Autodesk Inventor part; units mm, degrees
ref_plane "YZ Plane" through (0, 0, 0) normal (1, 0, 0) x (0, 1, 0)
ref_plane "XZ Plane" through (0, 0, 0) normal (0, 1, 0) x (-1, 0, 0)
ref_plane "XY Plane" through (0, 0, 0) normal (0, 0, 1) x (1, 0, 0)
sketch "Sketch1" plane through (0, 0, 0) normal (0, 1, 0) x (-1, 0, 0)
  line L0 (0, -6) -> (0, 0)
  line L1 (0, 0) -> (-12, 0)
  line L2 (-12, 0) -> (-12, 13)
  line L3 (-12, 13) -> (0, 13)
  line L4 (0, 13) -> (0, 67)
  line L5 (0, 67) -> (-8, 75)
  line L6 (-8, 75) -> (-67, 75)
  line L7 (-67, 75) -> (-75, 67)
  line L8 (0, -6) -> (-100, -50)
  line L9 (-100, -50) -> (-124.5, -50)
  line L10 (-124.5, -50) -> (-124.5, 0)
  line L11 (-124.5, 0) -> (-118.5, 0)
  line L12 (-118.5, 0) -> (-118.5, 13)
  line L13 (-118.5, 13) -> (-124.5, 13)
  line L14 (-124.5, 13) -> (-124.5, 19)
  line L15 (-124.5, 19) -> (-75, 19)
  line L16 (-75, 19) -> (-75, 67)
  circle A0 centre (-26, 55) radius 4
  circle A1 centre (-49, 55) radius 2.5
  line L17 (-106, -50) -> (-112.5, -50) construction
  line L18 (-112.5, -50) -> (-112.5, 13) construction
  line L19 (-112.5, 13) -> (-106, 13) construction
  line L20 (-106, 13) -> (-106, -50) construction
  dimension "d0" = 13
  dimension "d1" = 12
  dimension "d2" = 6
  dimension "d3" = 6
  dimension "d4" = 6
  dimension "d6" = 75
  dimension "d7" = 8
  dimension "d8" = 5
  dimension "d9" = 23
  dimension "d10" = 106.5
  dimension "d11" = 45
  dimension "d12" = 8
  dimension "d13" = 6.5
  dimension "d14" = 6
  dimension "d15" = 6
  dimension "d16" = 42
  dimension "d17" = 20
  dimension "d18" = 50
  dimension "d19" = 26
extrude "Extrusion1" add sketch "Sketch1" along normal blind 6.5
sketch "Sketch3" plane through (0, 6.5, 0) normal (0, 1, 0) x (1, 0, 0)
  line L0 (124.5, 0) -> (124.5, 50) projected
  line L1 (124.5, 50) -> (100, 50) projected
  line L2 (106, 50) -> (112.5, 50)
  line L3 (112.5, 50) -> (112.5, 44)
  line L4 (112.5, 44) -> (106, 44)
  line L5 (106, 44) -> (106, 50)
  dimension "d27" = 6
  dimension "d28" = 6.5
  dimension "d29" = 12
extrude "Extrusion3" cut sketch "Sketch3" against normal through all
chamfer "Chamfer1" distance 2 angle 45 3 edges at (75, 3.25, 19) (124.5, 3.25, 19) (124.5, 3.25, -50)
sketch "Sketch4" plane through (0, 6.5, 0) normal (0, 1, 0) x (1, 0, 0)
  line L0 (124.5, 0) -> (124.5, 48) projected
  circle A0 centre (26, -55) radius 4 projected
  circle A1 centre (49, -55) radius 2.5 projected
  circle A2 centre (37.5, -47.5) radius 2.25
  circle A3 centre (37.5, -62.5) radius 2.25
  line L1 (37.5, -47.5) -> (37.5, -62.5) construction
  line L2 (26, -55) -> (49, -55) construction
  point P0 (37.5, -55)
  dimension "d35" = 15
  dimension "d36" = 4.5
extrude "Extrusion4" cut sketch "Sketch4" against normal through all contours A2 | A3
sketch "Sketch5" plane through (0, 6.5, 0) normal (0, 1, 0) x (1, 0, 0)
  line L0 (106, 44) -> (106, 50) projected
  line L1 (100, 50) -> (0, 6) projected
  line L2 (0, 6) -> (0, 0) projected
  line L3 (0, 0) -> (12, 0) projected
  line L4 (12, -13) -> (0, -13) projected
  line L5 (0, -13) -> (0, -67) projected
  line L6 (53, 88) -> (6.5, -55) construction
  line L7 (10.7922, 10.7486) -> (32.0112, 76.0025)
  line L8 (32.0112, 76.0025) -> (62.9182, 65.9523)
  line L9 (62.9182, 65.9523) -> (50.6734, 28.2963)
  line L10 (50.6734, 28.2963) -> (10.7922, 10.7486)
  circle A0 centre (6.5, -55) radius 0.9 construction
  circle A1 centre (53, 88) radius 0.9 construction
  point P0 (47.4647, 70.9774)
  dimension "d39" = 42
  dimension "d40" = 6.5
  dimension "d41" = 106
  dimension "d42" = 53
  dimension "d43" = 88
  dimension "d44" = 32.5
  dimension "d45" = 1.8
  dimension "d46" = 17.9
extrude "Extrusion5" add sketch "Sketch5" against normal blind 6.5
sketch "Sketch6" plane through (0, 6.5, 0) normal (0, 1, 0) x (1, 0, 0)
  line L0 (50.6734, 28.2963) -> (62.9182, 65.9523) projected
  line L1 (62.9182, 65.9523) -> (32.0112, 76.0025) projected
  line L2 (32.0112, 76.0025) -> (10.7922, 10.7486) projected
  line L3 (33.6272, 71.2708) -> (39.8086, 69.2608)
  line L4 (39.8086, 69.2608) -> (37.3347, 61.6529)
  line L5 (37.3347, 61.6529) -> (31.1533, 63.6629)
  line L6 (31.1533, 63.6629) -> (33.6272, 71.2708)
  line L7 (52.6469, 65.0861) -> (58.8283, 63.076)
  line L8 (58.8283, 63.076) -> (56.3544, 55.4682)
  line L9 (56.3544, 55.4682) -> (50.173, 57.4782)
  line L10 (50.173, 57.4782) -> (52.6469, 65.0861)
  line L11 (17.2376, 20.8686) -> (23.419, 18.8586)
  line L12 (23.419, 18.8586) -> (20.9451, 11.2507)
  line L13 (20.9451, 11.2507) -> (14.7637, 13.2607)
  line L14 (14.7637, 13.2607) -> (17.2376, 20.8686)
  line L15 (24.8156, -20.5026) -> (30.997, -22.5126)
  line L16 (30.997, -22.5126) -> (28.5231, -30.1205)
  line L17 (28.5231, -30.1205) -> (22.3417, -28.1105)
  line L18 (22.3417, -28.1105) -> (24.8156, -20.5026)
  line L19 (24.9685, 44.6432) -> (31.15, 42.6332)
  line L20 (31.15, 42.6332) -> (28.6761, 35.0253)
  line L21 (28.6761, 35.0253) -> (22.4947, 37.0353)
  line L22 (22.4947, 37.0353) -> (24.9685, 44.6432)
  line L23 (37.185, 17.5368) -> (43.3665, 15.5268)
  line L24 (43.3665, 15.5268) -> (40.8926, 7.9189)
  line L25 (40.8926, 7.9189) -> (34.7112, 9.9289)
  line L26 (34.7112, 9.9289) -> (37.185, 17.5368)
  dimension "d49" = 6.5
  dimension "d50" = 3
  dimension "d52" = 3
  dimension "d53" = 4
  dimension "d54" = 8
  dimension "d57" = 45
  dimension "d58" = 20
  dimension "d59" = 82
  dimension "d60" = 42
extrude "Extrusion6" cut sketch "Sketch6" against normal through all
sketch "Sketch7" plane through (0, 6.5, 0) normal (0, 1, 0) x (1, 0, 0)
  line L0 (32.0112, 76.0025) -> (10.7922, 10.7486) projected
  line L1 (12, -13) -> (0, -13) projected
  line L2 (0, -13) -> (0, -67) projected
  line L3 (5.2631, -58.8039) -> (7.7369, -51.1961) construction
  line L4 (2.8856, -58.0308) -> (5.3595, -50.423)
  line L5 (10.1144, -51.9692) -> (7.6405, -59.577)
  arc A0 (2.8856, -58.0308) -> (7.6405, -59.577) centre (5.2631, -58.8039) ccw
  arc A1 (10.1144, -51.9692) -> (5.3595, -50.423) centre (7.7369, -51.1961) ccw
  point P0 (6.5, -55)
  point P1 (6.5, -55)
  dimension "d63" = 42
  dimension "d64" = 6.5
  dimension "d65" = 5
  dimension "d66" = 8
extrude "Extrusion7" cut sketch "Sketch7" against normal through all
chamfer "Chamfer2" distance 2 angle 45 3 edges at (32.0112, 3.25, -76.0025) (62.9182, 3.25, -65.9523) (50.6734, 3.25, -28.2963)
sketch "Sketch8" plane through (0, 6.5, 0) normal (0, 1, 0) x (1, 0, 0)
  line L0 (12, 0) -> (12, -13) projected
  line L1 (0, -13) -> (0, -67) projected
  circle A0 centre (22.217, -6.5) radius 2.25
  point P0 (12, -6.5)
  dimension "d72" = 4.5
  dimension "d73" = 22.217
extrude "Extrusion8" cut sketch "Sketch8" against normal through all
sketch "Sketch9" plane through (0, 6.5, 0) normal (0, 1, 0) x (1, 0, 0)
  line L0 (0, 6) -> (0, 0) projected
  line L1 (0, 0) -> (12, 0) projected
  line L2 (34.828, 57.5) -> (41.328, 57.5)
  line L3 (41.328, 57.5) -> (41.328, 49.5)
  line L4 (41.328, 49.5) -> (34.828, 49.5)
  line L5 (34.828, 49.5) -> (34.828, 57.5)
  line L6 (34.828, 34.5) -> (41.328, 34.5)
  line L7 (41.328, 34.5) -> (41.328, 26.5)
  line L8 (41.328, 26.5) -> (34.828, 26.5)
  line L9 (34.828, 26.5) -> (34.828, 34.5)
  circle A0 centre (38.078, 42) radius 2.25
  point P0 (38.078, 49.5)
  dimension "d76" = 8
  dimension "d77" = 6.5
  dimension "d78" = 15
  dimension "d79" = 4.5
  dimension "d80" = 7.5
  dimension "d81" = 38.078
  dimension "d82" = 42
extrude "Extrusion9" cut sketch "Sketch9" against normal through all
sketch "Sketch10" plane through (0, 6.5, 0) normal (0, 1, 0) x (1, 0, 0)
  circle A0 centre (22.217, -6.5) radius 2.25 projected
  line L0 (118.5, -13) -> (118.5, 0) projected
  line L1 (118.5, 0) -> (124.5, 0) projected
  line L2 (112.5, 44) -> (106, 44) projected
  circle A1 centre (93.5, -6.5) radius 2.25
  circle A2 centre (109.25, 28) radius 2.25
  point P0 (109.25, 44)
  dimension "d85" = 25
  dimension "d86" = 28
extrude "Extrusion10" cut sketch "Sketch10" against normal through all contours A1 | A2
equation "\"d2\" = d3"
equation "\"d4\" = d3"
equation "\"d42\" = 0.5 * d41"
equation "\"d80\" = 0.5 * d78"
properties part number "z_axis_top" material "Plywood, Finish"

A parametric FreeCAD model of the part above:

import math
import FreeCAD as App
import Part
import Sketcher

V = App.Vector
Q = App.Units.Quantity


def edges_at(feature, points):
    """Names of the edges that pass closest to the given points."""
    edges = feature.Shape.Edges
    near = lambda p: min(range(len(edges)), key=lambda i: edges[i].distToShape(Part.Vertex(*p))[0])
    return sorted({f"Edge{near(p) + 1}" for p in points})


def add_polygon(sketch, points):
    """Adds a closed chain of lines whose ends are joined by coincident constraints."""
    first, n = sketch.GeometryCount, len(points)
    for a, b in zip(points, points[1:] + points[:1]):
        sketch.addGeometry(Part.LineSegment(App.Vector(*a, 0), App.Vector(*b, 0)), False)
    for i in range(n):
        sketch.addConstraint(Sketcher.Constraint("Coincident", first + i, 2, first + (i + 1) % n, 1))

doc = App.newDocument("Part")
body = doc.addObject("PartDesign::Body", "Body")

sketch1 = doc.addObject("Sketcher::SketchObject", "Sketch")
body.addObject(sketch1)
sketch1.AttachmentSupport = (doc.XZ_Plane, [""])
sketch1.MapMode = "FlatFace"
add_polygon(sketch1, [(100, -50), (0, -6), (0, 0), (12, 0), (12, 13), (0, 13), (0, 67), (8, 75), (67, 75), (75, 67), (75, 19), (124.5, 19), (124.5, 13), (118.5, 13), (118.5, 0), (124.5, 0), (124.5, -50)])
sketch1.addGeometry(Part.Circle(V(49, 55, 0), V(0, 0, 1), 2.5), False)
sketch1.addGeometry(Part.Circle(V(26, 55, 0), V(0, 0, 1), 4), False)
sketch1.addConstraint(Sketcher.Constraint("Vertical", 1))
sketch1.addConstraint(Sketcher.Constraint("Horizontal", 2))
sketch1.addConstraint(Sketcher.Constraint("Vertical", 3))
sketch1.addConstraint(Sketcher.Constraint("Horizontal", 4))
sketch1.addConstraint(Sketcher.Constraint("Vertical", 5))
sketch1.addConstraint(Sketcher.Constraint("Horizontal", 7))
sketch1.addConstraint(Sketcher.Constraint("Vertical", 9))
sketch1.addConstraint(Sketcher.Constraint("Horizontal", 10))
sketch1.addConstraint(Sketcher.Constraint("Vertical", 11))
sketch1.addConstraint(Sketcher.Constraint("Horizontal", 12))
sketch1.addConstraint(Sketcher.Constraint("Vertical", 13))
sketch1.addConstraint(Sketcher.Constraint("Horizontal", 14))
sketch1.addConstraint(Sketcher.Constraint("Vertical", 15))
sketch1.addConstraint(Sketcher.Constraint("Horizontal", 16))
sketch1.addConstraint(Sketcher.Constraint("Coincident", 1, 2, -1, 1))
sketch1.addConstraint(Sketcher.Constraint("PointOnObject", 4, 2, -2))
sketch1.addConstraint(Sketcher.Constraint("PointOnObject", 13, 2, -1))
sketch1.addConstraint(Sketcher.Constraint("Perpendicular", 6, 8))
sketch1.addConstraint(Sketcher.Constraint("Horizontal", 17, 3, 18, 3))
sketch1.addConstraint(Sketcher.Constraint("Horizontal", 5, 2, 8, 2))
sketch1.addConstraint(Sketcher.Constraint("Horizontal", 4, 2, 11, 2))
sketch1.addConstraint(Sketcher.Constraint("Vertical", 11, 2, 14, 2))
sketch1.addConstraint(Sketcher.Constraint("Equal", 14, 1))
sketch1.addConstraint(Sketcher.Constraint("Equal", 1, 11))
sketch1.addConstraint(Sketcher.Constraint("Equal", 6, 8))
sketch1.addConstraint(Sketcher.Constraint("Diameter", 17, Q("5 mm")))
sketch1.addConstraint(Sketcher.Constraint("Diameter", 18, Q("8 mm")))
sketch1.addConstraint(Sketcher.Constraint("DistanceX", 2, 1, 2, 2, Q("12 mm")))
sketch1.addConstraint(Sketcher.Constraint("DistanceX", 12, 2, 12, 1, Q("6 mm")))
sketch1.addConstraint(Sketcher.Constraint("DistanceY", 3, 1, 3, 2, Q("13 mm")))
sketch1.addConstraint(Sketcher.Constraint("DistanceY", 15, 2, 15, 1, Q("50 mm")))
sketch1.addConstraint(Sketcher.Constraint("DistanceX", -1, 1, 18, 3, Q("26 mm")))
sketch1.addConstraint(Sketcher.Constraint("DistanceX", -1, 1, 6, 2, Q("8 mm")))
sketch1.addConstraint(Sketcher.Constraint("DistanceY", -1, 1, 6, 2, Q("75 mm")))
sketch1.addConstraint(Sketcher.Constraint("DistanceX", -1, 1, 8, 2, Q("75 mm")))
sketch1.addConstraint(Sketcher.Constraint("DistanceX", 18, 3, 17, 3, Q("23 mm")))
sketch1.addConstraint(Sketcher.Constraint("DistanceY", 3, 2, 18, 3, Q("42 mm")))
sketch1.addConstraint(Sketcher.Constraint("DistanceX", 10, 1, 10, 2, Q("49.5 mm")))
sketch1.addConstraint(Sketcher.Constraint("DistanceX", 16, 2, 16, 1, Q("24.5 mm")))
pad1 = doc.addObject("PartDesign::Pad", "Pad")
body.addObject(pad1)
pad1.Profile = sketch1
pad1.Length = 6.5
pad1.Reversed = True

sketch2 = doc.addObject("Sketcher::SketchObject", "Sketch001")
body.addObject(sketch2)
sketch2.AttachmentSupport = (doc.XZ_Plane, [""])
sketch2.MapMode = "FlatFace"
sketch2.AttachmentOffset = App.Placement(V(0, 0, -6.5), App.Rotation())
add_polygon(sketch2, [(112.5, -44), (112.5, -50), (106, -50), (106, -44)])
sketch2.addConstraint(Sketcher.Constraint("Vertical", 0))
sketch2.addConstraint(Sketcher.Constraint("Horizontal", 1))
sketch2.addConstraint(Sketcher.Constraint("Vertical", 2))
sketch2.addConstraint(Sketcher.Constraint("Horizontal", 3))
sketch2.addConstraint(Sketcher.Constraint("DistanceY", 0, 2, 0, 1, Q("6 mm")))
sketch2.addConstraint(Sketcher.Constraint("DistanceX", 1, 2, 1, 1, Q("6.5 mm")))
sketch2.addConstraint(Sketcher.Constraint("DistanceY", 0, 2, -1, 1, Q("50 mm")))
sketch2.addConstraint(Sketcher.Constraint("DistanceX", -1, 1, 1, 2, Q("106 mm")))
pocket1 = doc.addObject("PartDesign::Pocket", "Pocket")
body.addObject(pocket1)
pocket1.Profile = sketch2
pocket1.Type = "ThroughAll"
pocket1.Reversed = True
doc.recompute()

chamfer = doc.addObject("PartDesign::Chamfer", "Chamfer")
body.addObject(chamfer)
chamfer.Base = (pocket1, edges_at(pocket1, [(75, 3.25, 19), (124.5, 3.25, 19), (124.5, 3.25, -50)]))
chamfer.Size = 2

sketch3 = doc.addObject("Sketcher::SketchObject", "Sketch002")
body.addObject(sketch3)
sketch3.AttachmentSupport = (doc.XZ_Plane, [""])
sketch3.MapMode = "FlatFace"
sketch3.AttachmentOffset = App.Placement(V(0, 0, -6.5), App.Rotation())
sketch3.addGeometry(Part.Circle(V(37.5, 47.5, 0), V(0, 0, 1), 2.25), False)
sketch3.addGeometry(Part.Circle(V(37.5, 62.5, 0), V(0, 0, 1), 2.25), False)
sketch3.addConstraint(Sketcher.Constraint("Equal", 0, 1))
sketch3.addConstraint(Sketcher.Constraint("Vertical", 0, 3, 1, 3))
sketch3.addConstraint(Sketcher.Constraint("Diameter", 0, Q("4.5 mm")))
sketch3.addConstraint(Sketcher.Constraint("DistanceY", 0, 3, 1, 3, Q("15 mm")))
sketch3.addConstraint(Sketcher.Constraint("DistanceX", -1, 1, 0, 3, Q("37.5 mm")))
sketch3.addConstraint(Sketcher.Constraint("DistanceY", -1, 1, 0, 3, Q("47.5 mm")))
pocket2 = doc.addObject("PartDesign::Pocket", "Pocket001")
body.addObject(pocket2)
pocket2.Profile = sketch3
pocket2.Type = "ThroughAll"
pocket2.Reversed = True

sketch4 = doc.addObject("Sketcher::SketchObject", "Sketch003")
body.addObject(sketch4)
sketch4.AttachmentSupport = (doc.XZ_Plane, [""])
sketch4.MapMode = "FlatFace"
sketch4.AttachmentOffset = App.Placement(V(0, 0, -6.5), App.Rotation())
add_polygon(sketch4, [(10.792212, -10.748573), (50.6734, -28.2963), (62.9182, -65.9523), (32.0112, -76.0025)])
sketch4.addConstraint(Sketcher.Constraint("Perpendicular", 1, 2))
sketch4.addConstraint(Sketcher.Constraint("Perpendicular", 2, 3))
sketch4.addConstraint(Sketcher.Constraint("Distance", 2, Q("32.5 mm")))
sketch4.addConstraint(Sketcher.Constraint("Angle", 0, Q("-23.7495 deg")))
sketch4.addConstraint(Sketcher.Constraint("Distance", 0, Q("43.571 mm")))
sketch4.addConstraint(Sketcher.Constraint("DistanceY", 1, 2, 0, 2, Q("37.656 mm")))
sketch4.addConstraint(Sketcher.Constraint("DistanceX", -1, 1, 0, 2, Q("50.6734 mm")))
sketch4.addConstraint(Sketcher.Constraint("DistanceY", 0, 2, -1, 1, Q("28.2963 mm")))
pad2 = doc.addObject("PartDesign::Pad", "Pad001")
body.addObject(pad2)
pad2.Profile = sketch4
pad2.Length = 6.5

sketch5 = doc.addObject("Sketcher::SketchObject", "Sketch004")
body.addObject(sketch5)
sketch5.AttachmentSupport = (doc.XZ_Plane, [""])
sketch5.MapMode = "FlatFace"
sketch5.AttachmentOffset = App.Placement(V(0, 0, -6.5), App.Rotation())
add_polygon(sketch5, [(39.8086, -69.2608), (33.6272, -71.2708), (31.1533, -63.6629), (37.3347, -61.6529)])
add_polygon(sketch5, [(58.8283, -63.076), (52.6469, -65.0861), (50.173, -57.4782), (56.3544, -55.4682)])
add_polygon(sketch5, [(23.419, -18.8586), (17.2376, -20.8686), (14.7637, -13.2607), (20.9451, -11.2507)])
add_polygon(sketch5, [(30.997, 22.5126), (24.8156, 20.5026), (22.3417, 28.1105), (28.5231, 30.1205)])
add_polygon(sketch5, [(31.15, -42.6332), (24.9685, -44.6432), (22.4947, -37.0353), (28.6761, -35.0253)])
add_polygon(sketch5, [(43.3665, -15.5268), (37.185, -17.5368), (34.7112, -9.9289), (40.8926, -7.9189)])
sketch5.addConstraint(Sketcher.Constraint("Perpendicular", 0, 1))
sketch5.addConstraint(Sketcher.Constraint("Perpendicular", 1, 2))
sketch5.addConstraint(Sketcher.Constraint("Perpendicular", 2, 3))
sketch5.addConstraint(Sketcher.Constraint("Perpendicular", 3, 4))
sketch5.addConstraint(Sketcher.Constraint("Perpendicular", 4, 5))
sketch5.addConstraint(Sketcher.Constraint("Perpendicular", 5, 6))
sketch5.addConstraint(Sketcher.Constraint("Perpendicular", 6, 7))
sketch5.addConstraint(Sketcher.Constraint("Perpendicular", 7, 8))
sketch5.addConstraint(Sketcher.Constraint("Perpendicular", 8, 9))
sketch5.addConstraint(Sketcher.Constraint("Perpendicular", 9, 10))
sketch5.addConstraint(Sketcher.Constraint("Perpendicular", 10, 11))
sketch5.addConstraint(Sketcher.Constraint("Perpendicular", 11, 12))
sketch5.addConstraint(Sketcher.Constraint("Perpendicular", 12, 13))
sketch5.addConstraint(Sketcher.Constraint("Perpendicular", 13, 14))
sketch5.addConstraint(Sketcher.Constraint("Perpendicular", 14, 15))
sketch5.addConstraint(Sketcher.Constraint("Perpendicular", 15, 16))
sketch5.addConstraint(Sketcher.Constraint("Perpendicular", 16, 17))
sketch5.addConstraint(Sketcher.Constraint("Perpendicular", 17, 18))
sketch5.addConstraint(Sketcher.Constraint("Perpendicular", 18, 19))
sketch5.addConstraint(Sketcher.Constraint("Perpendicular", 19, 20))
sketch5.addConstraint(Sketcher.Constraint("Perpendicular", 20, 21))
sketch5.addConstraint(Sketcher.Constraint("Perpendicular", 21, 22))
sketch5.addConstraint(Sketcher.Constraint("Perpendicular", 22, 23))
sketch5.addConstraint(Sketcher.Constraint("Equal", 2, 4))
sketch5.addConstraint(Sketcher.Constraint("Equal", 3, 5))
sketch5.addConstraint(Sketcher.Constraint("Equal", 6, 8))
sketch5.addConstraint(Sketcher.Constraint("Equal", 7, 9))
sketch5.addConstraint(Sketcher.Constraint("Equal", 10, 12))
sketch5.addConstraint(Sketcher.Constraint("Equal", 11, 13))
sketch5.addConstraint(Sketcher.Constraint("Equal", 14, 16))
sketch5.addConstraint(Sketcher.Constraint("Equal", 15, 17))
sketch5.addConstraint(Sketcher.Constraint("Equal", 18, 20))
sketch5.addConstraint(Sketcher.Constraint("Equal", 19, 21))
sketch5.addConstraint(Sketcher.Constraint("Distance", 1, Q("8 mm")))
sketch5.addConstraint(Sketcher.Constraint("Distance", 0, Q("6.5 mm")))
sketch5.addConstraint(Sketcher.Constraint("DistanceX", -1, 1, 19, 2, Q("31.15 mm")))
sketch5.addConstraint(Sketcher.Constraint("DistanceY", 1, 2, 2, 2, Q("2.01 mm")))
sketch5.addConstraint(Sketcher.Constraint("DistanceX", 10, 2, 20, 2, Q("16.24 mm")))
sketch5.addConstraint(Sketcher.Constraint("DistanceY", 1, 2, -1, 1, Q("63.663 mm")))
sketch5.addConstraint(Sketcher.Constraint("DistanceX", -1, 1, 4, 2, Q("52.647 mm")))
sketch5.addConstraint(Sketcher.Constraint("DistanceY", 4, 2, -1, 1, Q("65.086 mm")))
sketch5.addConstraint(Sketcher.Constraint("DistanceX", -1, 1, 10, 2, Q("20.945 mm")))
sketch5.addConstraint(Sketcher.Constraint("DistanceX", -1, 1, 14, 2, Q("28.523 mm")))
sketch5.addConstraint(Sketcher.Constraint("DistanceY", 21, 2, -1, 1, Q("9.929 mm")))
sketch5.addConstraint(Sketcher.Constraint("DistanceX", 1, 2, 6, 2, Q("25.201 mm")))
sketch5.addConstraint(Sketcher.Constraint("DistanceY", 11, 2, 13, 2, Q("46.969 mm")))
sketch5.addConstraint(Sketcher.Constraint("DistanceY", 20, 2, 10, 2, Q("6.286 mm")))
sketch5.addConstraint(Sketcher.Constraint("DistanceY", 16, 2, -1, 1, Q("44.6432 mm")))
pocket3 = doc.addObject("PartDesign::Pocket", "Pocket002")
body.addObject(pocket3)
pocket3.Profile = sketch5
pocket3.Type = "ThroughAll"
pocket3.Reversed = True

sketch6 = doc.addObject("Sketcher::SketchObject", "Sketch005")
body.addObject(sketch6)
sketch6.AttachmentSupport = (doc.XZ_Plane, [""])
sketch6.MapMode = "FlatFace"
sketch6.AttachmentOffset = App.Placement(V(0, 0, -6.5), App.Rotation())
sketch6.addGeometry(Part.LineSegment(V(5.3595, 50.423, 0), V(2.8856, 58.0308, 0)), False)
sketch6.addGeometry(Part.ArcOfCircle(Part.Circle(V(5.2631, 58.8039, 0), V(0, 0, 1), 2.500038), math.radians(18.013861), math.radians(198.013152)), False)
sketch6.addGeometry(Part.LineSegment(V(7.6405, 59.577, 0), V(10.1144, 51.9692, 0)), False)
sketch6.addGeometry(Part.ArcOfCircle(Part.Circle(V(7.7369, 51.1961, 0), V(0, 0, 1), 2.500038), math.radians(-161.986139), math.radians(18.013152)), False)
sketch6.addConstraint(Sketcher.Constraint("Tangent", 0, 2, 1, 2))
sketch6.addConstraint(Sketcher.Constraint("Tangent", 1, 1, 2, 1))
sketch6.addConstraint(Sketcher.Constraint("Tangent", 2, 2, 3, 2))
sketch6.addConstraint(Sketcher.Constraint("Tangent", 3, 1, 0, 1))
sketch6.addConstraint(Sketcher.Constraint("Equal", 1, 3))
sketch6.addConstraint(Sketcher.Constraint("Radius", 1, Q("2.5 mm")))
sketch6.addConstraint(Sketcher.Constraint("Distance", 0, Q("8 mm")))
sketch6.addConstraint(Sketcher.Constraint("DistanceX", -1, 1, 1, 3, Q("5.263 mm")))
sketch6.addConstraint(Sketcher.Constraint("DistanceY", -1, 1, 1, 3, Q("58.804 mm")))
sketch6.addConstraint(Sketcher.Constraint("DistanceX", -1, 1, 3, 3, Q("7.737 mm")))
pocket4 = doc.addObject("PartDesign::Pocket", "Pocket003")
body.addObject(pocket4)
pocket4.Profile = sketch6
pocket4.Type = "ThroughAll"
pocket4.Reversed = True
doc.recompute()

chamfer2 = doc.addObject("PartDesign::Chamfer", "Chamfer001")
body.addObject(chamfer2)
chamfer2.Base = (pocket4, edges_at(pocket4, [(32.011, 3.25, -76.002), (62.918, 3.25, -65.952), (50.673, 3.25, -28.296)]))
chamfer2.Size = 2

sketch7 = doc.addObject("Sketcher::SketchObject", "Sketch006")
body.addObject(sketch7)
sketch7.AttachmentSupport = (doc.XZ_Plane, [""])
sketch7.MapMode = "FlatFace"
sketch7.AttachmentOffset = App.Placement(V(0, 0, -6.5), App.Rotation())
sketch7.addGeometry(Part.Circle(V(22.217, 6.5, 0), V(0, 0, 1), 2.25), False)
sketch7.addConstraint(Sketcher.Constraint("Diameter", 0, Q("4.5 mm")))
sketch7.addConstraint(Sketcher.Constraint("DistanceX", -1, 1, 0, 3, Q("22.217 mm")))
sketch7.addConstraint(Sketcher.Constraint("DistanceY", -1, 1, 0, 3, Q("6.5 mm")))
pocket5 = doc.addObject("PartDesign::Pocket", "Pocket004")
body.addObject(pocket5)
pocket5.Profile = sketch7
pocket5.Type = "ThroughAll"
pocket5.Reversed = True

sketch8 = doc.addObject("Sketcher::SketchObject", "Sketch007")
body.addObject(sketch8)
sketch8.AttachmentSupport = (doc.XZ_Plane, [""])
sketch8.MapMode = "FlatFace"
sketch8.AttachmentOffset = App.Placement(V(0, 0, -6.5), App.Rotation())
add_polygon(sketch8, [(41.328, -57.5), (34.828, -57.5), (34.828, -49.5), (41.328, -49.5)])
add_polygon(sketch8, [(41.328, -34.5), (34.828, -34.5), (34.828, -26.5), (41.328, -26.5)])
sketch8.addGeometry(Part.Circle(V(38.078, -42, 0), V(0, 0, 1), 2.25), False)
sketch8.addConstraint(Sketcher.Constraint("Horizontal", 0))
sketch8.addConstraint(Sketcher.Constraint("Vertical", 1))
sketch8.addConstraint(Sketcher.Constraint("Horizontal", 2))
sketch8.addConstraint(Sketcher.Constraint("Vertical", 3))
sketch8.addConstraint(Sketcher.Constraint("Horizontal", 4))
sketch8.addConstraint(Sketcher.Constraint("Vertical", 5))
sketch8.addConstraint(Sketcher.Constraint("Horizontal", 6))
sketch8.addConstraint(Sketcher.Constraint("Vertical", 7))
sketch8.addConstraint(Sketcher.Constraint("Vertical", 1, 2, 4, 2))
sketch8.addConstraint(Sketcher.Constraint("Vertical", 3, 2, 6, 2))
sketch8.addConstraint(Sketcher.Constraint("Equal", 3, 5))
sketch8.addConstraint(Sketcher.Constraint("Diameter", 8, Q("4.5 mm")))
sketch8.addConstraint(Sketcher.Constraint("DistanceY", 1, 1, 1, 2, Q("8 mm")))
sketch8.addConstraint(Sketcher.Constraint("DistanceX", 0, 2, 0, 1, Q("6.5 mm")))
sketch8.addConstraint(Sketcher.Constraint("DistanceY", 8, 3, -1, 1, Q("42 mm")))
sketch8.addConstraint(Sketcher.Constraint("DistanceY", 1, 2, 4, 2, Q("15 mm")))
sketch8.addConstraint(Sketcher.Constraint("DistanceY", 1, 2, 8, 3, Q("7.5 mm")))
sketch8.addConstraint(Sketcher.Constraint("DistanceX", -1, 1, 8, 3, Q("38.078 mm")))
sketch8.addConstraint(Sketcher.Constraint("DistanceX", 0, 2, 8, 3, Q("3.25 mm")))
pocket6 = doc.addObject("PartDesign::Pocket", "Pocket005")
body.addObject(pocket6)
pocket6.Profile = sketch8
pocket6.Type = "ThroughAll"
pocket6.Reversed = True

sketch9 = doc.addObject("Sketcher::SketchObject", "Sketch008")
body.addObject(sketch9)
sketch9.AttachmentSupport = (doc.XZ_Plane, [""])
sketch9.MapMode = "FlatFace"
sketch9.AttachmentOffset = App.Placement(V(0, 0, -6.5), App.Rotation())
sketch9.addGeometry(Part.Circle(V(93.5, 6.5, 0), V(0, 0, 1), 2.25), False)
sketch9.addGeometry(Part.Circle(V(109.25, -28, 0), V(0, 0, 1), 2.25), False)
sketch9.addConstraint(Sketcher.Constraint("Equal", 0, 1))
sketch9.addConstraint(Sketcher.Constraint("DistanceY", 1, 3, -1, 1, Q("28 mm")))
sketch9.addConstraint(Sketcher.Constraint("Diameter", 0, Q("4.5 mm")))
sketch9.addConstraint(Sketcher.Constraint("DistanceX", -1, 1, 0, 3, Q("93.5 mm")))
sketch9.addConstraint(Sketcher.Constraint("DistanceY", -1, 1, 0, 3, Q("6.5 mm")))
sketch9.addConstraint(Sketcher.Constraint("DistanceX", -1, 1, 1, 3, Q("109.25 mm")))
pocket7 = doc.addObject("PartDesign::Pocket", "Pocket006")
body.addObject(pocket7)
pocket7.Profile = sketch9
pocket7.Type = "ThroughAll"
pocket7.Reversed = True

doc.recompute()
